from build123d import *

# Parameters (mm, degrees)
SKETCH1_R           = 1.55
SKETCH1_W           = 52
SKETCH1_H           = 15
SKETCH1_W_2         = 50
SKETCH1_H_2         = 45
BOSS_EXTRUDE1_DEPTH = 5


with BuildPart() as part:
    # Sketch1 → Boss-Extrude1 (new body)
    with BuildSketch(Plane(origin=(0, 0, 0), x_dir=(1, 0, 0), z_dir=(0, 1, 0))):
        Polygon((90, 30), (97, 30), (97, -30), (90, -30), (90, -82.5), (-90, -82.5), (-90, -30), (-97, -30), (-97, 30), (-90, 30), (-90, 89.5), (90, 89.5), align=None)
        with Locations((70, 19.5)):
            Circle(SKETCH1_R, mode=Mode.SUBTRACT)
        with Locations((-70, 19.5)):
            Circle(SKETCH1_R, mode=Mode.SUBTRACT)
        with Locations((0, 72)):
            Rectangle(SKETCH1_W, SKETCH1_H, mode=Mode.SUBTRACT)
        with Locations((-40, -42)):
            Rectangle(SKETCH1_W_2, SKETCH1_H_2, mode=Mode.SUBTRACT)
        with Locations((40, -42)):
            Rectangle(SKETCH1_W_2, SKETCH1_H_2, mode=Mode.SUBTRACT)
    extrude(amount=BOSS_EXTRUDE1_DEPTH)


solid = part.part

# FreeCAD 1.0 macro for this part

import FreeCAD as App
import Part
import Sketcher

V = App.Vector


def add_polygon(sketch, points):
    """Adds a closed chain of lines whose ends are joined by coincident constraints."""
    first, n = sketch.GeometryCount, len(points)
    for a, b in zip(points, points[1:] + points[:1]):
        sketch.addGeometry(Part.LineSegment(App.Vector(*a, 0), App.Vector(*b, 0)), False)
    for i in range(n):
        sketch.addConstraint(Sketcher.Constraint("Coincident", first + i, 2, first + (i + 1) % n, 1))

doc = App.newDocument("Part")
body = doc.addObject("PartDesign::Body", "Body")

# Sketch on XZ plane
sketch1 = body.newObject("Sketcher::SketchObject", "Sketch")
sketch1.AttachmentSupport = (doc.getObject("XZ_Plane"), [""])
sketch1.MapMode = "FlatFace"
add_polygon(sketch1, [(97, -30), (90, -30), (90, -89.5), (-90, -89.5), (-90, -30), (-97, -30), (-97, 30), (-90, 30), (-90, 82.5), (90, 82.5), (90, 30), (97, 30)])  # lines 0-11
add_polygon(sketch1, [(15, 64.5), (15, 19.5), (65, 19.5), (65, 64.5)])  # lines 12-15
add_polygon(sketch1, [(-65, 64.5), (-65, 19.5), (-15, 19.5), (-15, 64.5)])  # lines 16-19
sketch1.addGeometry(Part.Circle(V(70, -19.5, 0), V(0, 0, 1), 1.6), False)  # 20
sketch1.addGeometry(Part.Circle(V(-70, -19.5, 0), V(0, 0, 1), 1.6), False)  # 21
add_polygon(sketch1, [(-26, -64.5), (-26, -79.5), (26, -79.5), (26, -64.5)])  # lines 22-25
sketch1.addConstraint(Sketcher.Constraint("Horizontal", 0))
sketch1.addConstraint(Sketcher.Constraint("Vertical", 1))
sketch1.addConstraint(Sketcher.Constraint("Horizontal", 2))
sketch1.addConstraint(Sketcher.Constraint("Vertical", 3))
sketch1.addConstraint(Sketcher.Constraint("Horizontal", 4))
sketch1.addConstraint(Sketcher.Constraint("Vertical", 5))
sketch1.addConstraint(Sketcher.Constraint("Horizontal", 6))
sketch1.addConstraint(Sketcher.Constraint("Vertical", 7))
sketch1.addConstraint(Sketcher.Constraint("Horizontal", 8))
sketch1.addConstraint(Sketcher.Constraint("Vertical", 9))
sketch1.addConstraint(Sketcher.Constraint("Horizontal", 10))
sketch1.addConstraint(Sketcher.Constraint("Vertical", 11))
sketch1.addConstraint(Sketcher.Constraint("Vertical", 12))
sketch1.addConstraint(Sketcher.Constraint("Horizontal", 13))
sketch1.addConstraint(Sketcher.Constraint("Vertical", 14))
sketch1.addConstraint(Sketcher.Constraint("Horizontal", 15))
sketch1.addConstraint(Sketcher.Constraint("Vertical", 16))
sketch1.addConstraint(Sketcher.Constraint("Horizontal", 17))
sketch1.addConstraint(Sketcher.Constraint("Vertical", 18))
sketch1.addConstraint(Sketcher.Constraint("Horizontal", 19))
sketch1.addConstraint(Sketcher.Constraint("Vertical", 22))
sketch1.addConstraint(Sketcher.Constraint("Horizontal", 23))
sketch1.addConstraint(Sketcher.Constraint("Vertical", 24))
sketch1.addConstraint(Sketcher.Constraint("Horizontal", 25))
sketch1.addConstraint(Sketcher.Constraint("Equal", 20, 21))
sketch1.addConstraint(Sketcher.Constraint("Symmetric", 0, 2, 6, 2, -1, 1))
sketch1.addConstraint(Sketcher.Constraint("Symmetric", 3, 2, 9, 2, -1, 1))
sketch1.addConstraint(Sketcher.Constraint("Symmetric", 20, 3, 21, 3, -2))
sketch1.addConstraint(Sketcher.Constraint("Symmetric", 0, 2, 3, 2, -2))
sketch1.addConstraint(Sketcher.Constraint("Symmetric", 13, 2, 16, 2, -2))
sketch1.addConstraint(Sketcher.Constraint("Symmetric", 15, 2, 18, 2, -2))
sketch1.addConstraint(Sketcher.Constraint("Equal", 0, 4))
sketch1.addConstraint(Sketcher.Constraint("Diameter", 20, 3.1))
sketch1.addConstraint(Sketcher.Constraint("DistanceX", 0, 2, 0, 1, 7.0))
sketch1.addConstraint(Sketcher.Constraint("DistanceX", 2, 2, 2, 1, 180.0))
sketch1.addConstraint(Sketcher.Constraint("DistanceX", 13, 1, 13, 2, 50.0))
sketch1.addConstraint(Sketcher.Constraint("DistanceX", 23, 1, 23, 2, 52.0))
sketch1.addConstraint(Sketcher.Constraint("DistanceY", 5, 1, 5, 2, 60.0))
sketch1.addConstraint(Sketcher.Constraint("DistanceY", 12, 2, 12, 1, 45.0))
sketch1.addConstraint(Sketcher.Constraint("DistanceY", 22, 2, 22, 1, 15.0))
sketch1.addConstraint(Sketcher.Constraint("DistanceY", 1, 2, 1, 1, 59.5))
sketch1.addConstraint(Sketcher.Constraint("DistanceY", 7, 1, 7, 2, 52.5))
sketch1.addConstraint(Sketcher.Constraint("DistanceX", -1, 1, 20, 3, 70.0))
sketch1.addConstraint(Sketcher.Constraint("DistanceX", -1, 1, 12, 2, 15.0))
sketch1.addConstraint(Sketcher.Constraint("DistanceX", 22, 2, -1, 1, 26.0))
sketch1.addConstraint(Sketcher.Constraint("DistanceY", 1, 2, 20, 3, 70.0))
sketch1.addConstraint(Sketcher.Constraint("DistanceY", 20, 3, 12, 2, 39.0))
sketch1.addConstraint(Sketcher.Constraint("DistanceY", 2, 2, 22, 2, 10.0))
pad1 = body.newObject("PartDesign::Pad", "Pad")
pad1.Profile = sketch1
pad1.Length = 5
pad1.Reversed = True

doc.recompute()
